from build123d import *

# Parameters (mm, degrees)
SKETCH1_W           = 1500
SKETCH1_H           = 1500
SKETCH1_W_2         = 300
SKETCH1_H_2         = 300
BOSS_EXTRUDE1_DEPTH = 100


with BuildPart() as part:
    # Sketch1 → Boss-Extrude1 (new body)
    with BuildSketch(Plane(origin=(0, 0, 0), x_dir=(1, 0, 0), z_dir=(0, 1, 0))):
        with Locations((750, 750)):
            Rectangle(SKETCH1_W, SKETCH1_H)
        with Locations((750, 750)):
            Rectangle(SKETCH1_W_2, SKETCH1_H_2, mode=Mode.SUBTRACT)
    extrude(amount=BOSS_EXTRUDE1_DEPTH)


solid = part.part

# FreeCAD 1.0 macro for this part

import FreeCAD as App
import Part
import Sketcher

V = App.Vector
Q = App.Units.Quantity

doc = App.newDocument("Part")
body = doc.addObject("PartDesign::Body", "Body")

sketch1 = body.newObject("Sketcher::SketchObject", "Sketch")
sketch1.AttachmentSupport = (doc.getObject("XZ_Plane"), [""])
sketch1.MapMode = "FlatFace"
sketch1.addGeometry([
    Part.LineSegment(V(0, -1500, 0), V(0, 0, 0)),
    Part.LineSegment(V(0, 0, 0), V(1500, 0, 0)),
    Part.LineSegment(V(1500, 0, 0), V(1500, -1500, 0)),
    Part.LineSegment(V(1500, -1500, 0), V(0, -1500, 0)),
    Part.LineSegment(V(900, -600, 0), V(600, -600, 0)),
    Part.LineSegment(V(600, -600, 0), V(600, -900, 0)),
    Part.LineSegment(V(600, -900, 0), V(900, -900, 0)),
    Part.LineSegment(V(900, -900, 0), V(900, -600, 0)),
], False)
sketch1.addConstraint([
    Sketcher.Constraint("Coincident", 0, 2, 1, 1),
    Sketcher.Constraint("Coincident", 1, 2, 2, 1),
    Sketcher.Constraint("Coincident", 2, 2, 3, 1),
    Sketcher.Constraint("Coincident", 3, 2, 0, 1),
    Sketcher.Constraint("Coincident", 4, 2, 5, 1),
    Sketcher.Constraint("Coincident", 5, 2, 6, 1),
    Sketcher.Constraint("Coincident", 6, 2, 7, 1),
    Sketcher.Constraint("Coincident", 7, 2, 4, 1),
    Sketcher.Constraint("Vertical", 0),
    Sketcher.Constraint("Horizontal", 1),
    Sketcher.Constraint("Vertical", 2),
    Sketcher.Constraint("Horizontal", 3),
    Sketcher.Constraint("Horizontal", 4),
    Sketcher.Constraint("Vertical", 5),
    Sketcher.Constraint("Horizontal", 6),
    Sketcher.Constraint("Vertical", 7),
    Sketcher.Constraint("Coincident", 0, 2, -1, 1),
    Sketcher.Constraint("Equal", 3, 0),
    Sketcher.Constraint("Equal", 6, 5),
    Sketcher.Constraint("DistanceX", 1, 1, 1, 2, Q("1500 mm")),
    Sketcher.Constraint("DistanceX", 4, 2, 4, 1, Q("300 mm")),
    Sketcher.Constraint("DistanceX", -1, 1, 4, 2, Q("600 mm")),
    Sketcher.Constraint("DistanceY", 4, 2, -1, 1, Q("600 mm")),
])
pad1 = body.newObject("PartDesign::Pad", "Pad")
pad1.Profile = sketch1
pad1.Length = 100
pad1.Reversed = True

doc.recompute()
